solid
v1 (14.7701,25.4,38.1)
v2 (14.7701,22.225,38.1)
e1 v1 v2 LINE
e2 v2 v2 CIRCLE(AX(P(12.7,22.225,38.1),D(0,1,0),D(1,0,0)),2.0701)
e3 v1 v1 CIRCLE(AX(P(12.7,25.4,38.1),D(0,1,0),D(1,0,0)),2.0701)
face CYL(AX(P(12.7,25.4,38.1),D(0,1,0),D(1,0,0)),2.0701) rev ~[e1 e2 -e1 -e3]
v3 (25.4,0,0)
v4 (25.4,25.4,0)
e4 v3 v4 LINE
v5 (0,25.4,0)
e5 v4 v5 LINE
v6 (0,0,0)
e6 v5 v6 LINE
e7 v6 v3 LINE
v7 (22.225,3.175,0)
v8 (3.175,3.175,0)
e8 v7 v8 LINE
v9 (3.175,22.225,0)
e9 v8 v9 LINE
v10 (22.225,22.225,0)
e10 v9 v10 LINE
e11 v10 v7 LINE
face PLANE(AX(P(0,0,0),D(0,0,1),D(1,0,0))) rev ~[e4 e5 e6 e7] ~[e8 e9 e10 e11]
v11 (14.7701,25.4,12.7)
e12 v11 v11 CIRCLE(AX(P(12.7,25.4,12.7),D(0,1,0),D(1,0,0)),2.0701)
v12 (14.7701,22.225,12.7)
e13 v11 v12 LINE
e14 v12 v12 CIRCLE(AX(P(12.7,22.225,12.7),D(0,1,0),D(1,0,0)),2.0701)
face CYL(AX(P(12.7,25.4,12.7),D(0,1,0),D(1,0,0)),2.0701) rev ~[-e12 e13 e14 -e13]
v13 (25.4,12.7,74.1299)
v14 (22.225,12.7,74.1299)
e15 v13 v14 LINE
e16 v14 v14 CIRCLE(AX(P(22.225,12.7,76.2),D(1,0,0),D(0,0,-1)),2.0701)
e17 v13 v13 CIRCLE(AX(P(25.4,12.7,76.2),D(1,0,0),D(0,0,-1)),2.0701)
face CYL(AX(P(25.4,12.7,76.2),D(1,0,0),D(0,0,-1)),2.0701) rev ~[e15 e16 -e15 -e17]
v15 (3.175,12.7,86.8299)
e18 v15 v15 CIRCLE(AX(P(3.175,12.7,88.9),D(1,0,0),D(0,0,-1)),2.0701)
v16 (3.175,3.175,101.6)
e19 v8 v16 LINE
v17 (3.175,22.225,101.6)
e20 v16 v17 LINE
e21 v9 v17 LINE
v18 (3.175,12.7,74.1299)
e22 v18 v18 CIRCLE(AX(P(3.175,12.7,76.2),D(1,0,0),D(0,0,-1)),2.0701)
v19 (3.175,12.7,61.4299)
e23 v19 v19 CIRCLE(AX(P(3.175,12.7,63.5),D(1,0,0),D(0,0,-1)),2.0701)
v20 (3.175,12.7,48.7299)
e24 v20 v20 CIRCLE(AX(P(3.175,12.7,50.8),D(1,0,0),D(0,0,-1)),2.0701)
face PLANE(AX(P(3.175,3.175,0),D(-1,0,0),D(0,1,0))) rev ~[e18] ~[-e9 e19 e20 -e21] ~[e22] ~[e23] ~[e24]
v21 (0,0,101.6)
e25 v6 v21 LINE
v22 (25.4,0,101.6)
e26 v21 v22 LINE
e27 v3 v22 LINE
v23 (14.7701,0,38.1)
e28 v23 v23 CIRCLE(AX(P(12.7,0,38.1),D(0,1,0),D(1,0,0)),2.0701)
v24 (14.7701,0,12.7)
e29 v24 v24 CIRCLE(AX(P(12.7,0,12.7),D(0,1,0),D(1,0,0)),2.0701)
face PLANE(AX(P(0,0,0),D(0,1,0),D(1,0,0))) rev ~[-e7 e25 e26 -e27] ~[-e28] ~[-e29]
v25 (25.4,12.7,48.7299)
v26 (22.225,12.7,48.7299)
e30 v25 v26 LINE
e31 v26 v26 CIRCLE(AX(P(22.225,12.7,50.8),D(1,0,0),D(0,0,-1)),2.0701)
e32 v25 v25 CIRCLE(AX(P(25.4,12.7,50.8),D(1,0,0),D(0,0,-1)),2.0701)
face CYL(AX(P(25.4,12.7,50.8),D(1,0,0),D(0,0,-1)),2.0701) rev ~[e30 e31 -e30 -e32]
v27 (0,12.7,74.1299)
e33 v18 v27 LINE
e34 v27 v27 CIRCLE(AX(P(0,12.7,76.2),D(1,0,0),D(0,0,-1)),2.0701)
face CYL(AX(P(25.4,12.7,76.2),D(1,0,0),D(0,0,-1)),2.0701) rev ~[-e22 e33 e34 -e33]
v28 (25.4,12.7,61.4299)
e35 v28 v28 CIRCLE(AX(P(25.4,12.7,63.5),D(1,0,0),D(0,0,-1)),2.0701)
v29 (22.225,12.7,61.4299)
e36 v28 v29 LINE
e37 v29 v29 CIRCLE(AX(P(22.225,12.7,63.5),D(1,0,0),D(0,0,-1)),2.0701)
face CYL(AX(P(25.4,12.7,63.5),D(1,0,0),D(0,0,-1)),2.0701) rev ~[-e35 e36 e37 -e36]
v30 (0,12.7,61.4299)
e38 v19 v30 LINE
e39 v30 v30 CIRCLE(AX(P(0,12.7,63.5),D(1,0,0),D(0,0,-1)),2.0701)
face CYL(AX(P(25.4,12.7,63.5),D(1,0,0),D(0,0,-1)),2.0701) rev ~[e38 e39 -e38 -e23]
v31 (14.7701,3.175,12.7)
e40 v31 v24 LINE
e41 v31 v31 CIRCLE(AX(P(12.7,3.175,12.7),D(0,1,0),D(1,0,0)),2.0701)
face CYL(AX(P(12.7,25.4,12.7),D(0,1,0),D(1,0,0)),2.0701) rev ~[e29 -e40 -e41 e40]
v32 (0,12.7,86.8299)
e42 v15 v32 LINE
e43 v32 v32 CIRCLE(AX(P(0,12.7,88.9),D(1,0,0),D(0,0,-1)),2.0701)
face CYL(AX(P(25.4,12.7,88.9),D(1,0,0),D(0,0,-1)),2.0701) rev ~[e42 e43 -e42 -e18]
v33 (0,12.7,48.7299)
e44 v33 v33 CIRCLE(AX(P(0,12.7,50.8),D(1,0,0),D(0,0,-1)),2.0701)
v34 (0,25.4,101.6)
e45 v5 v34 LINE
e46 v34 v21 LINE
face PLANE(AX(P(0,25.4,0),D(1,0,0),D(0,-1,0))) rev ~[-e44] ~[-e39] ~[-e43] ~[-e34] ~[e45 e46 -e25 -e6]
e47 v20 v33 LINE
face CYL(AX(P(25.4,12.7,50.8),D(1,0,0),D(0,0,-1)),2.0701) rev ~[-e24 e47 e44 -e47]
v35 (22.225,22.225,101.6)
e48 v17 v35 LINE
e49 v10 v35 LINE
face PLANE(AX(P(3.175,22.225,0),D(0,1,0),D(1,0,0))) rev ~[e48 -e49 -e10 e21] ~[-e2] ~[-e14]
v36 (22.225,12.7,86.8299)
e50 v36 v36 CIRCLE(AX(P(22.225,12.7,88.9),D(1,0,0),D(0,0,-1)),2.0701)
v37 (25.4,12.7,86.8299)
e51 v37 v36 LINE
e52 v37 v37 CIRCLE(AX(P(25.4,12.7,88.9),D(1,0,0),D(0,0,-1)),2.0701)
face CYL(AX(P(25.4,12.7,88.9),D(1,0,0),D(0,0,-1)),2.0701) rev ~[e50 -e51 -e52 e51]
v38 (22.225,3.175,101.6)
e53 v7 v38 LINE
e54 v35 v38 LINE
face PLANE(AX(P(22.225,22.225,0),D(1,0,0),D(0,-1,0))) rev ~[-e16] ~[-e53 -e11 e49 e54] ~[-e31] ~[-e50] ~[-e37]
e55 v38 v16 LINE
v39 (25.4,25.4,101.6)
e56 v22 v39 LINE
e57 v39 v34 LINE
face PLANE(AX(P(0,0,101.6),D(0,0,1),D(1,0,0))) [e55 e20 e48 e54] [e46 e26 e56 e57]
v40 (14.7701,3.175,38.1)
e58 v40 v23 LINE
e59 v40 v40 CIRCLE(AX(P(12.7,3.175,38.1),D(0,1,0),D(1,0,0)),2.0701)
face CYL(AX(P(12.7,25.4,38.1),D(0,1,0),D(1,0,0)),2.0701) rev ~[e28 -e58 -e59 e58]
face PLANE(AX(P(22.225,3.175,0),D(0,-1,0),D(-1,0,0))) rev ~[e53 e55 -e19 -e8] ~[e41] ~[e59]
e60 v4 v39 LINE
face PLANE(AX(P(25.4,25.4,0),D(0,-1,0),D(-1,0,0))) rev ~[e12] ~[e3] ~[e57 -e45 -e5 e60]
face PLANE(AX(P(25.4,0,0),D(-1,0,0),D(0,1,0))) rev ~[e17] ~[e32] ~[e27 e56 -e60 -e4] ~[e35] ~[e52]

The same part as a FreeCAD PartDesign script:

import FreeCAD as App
import Part
import Sketcher

V = App.Vector
Q = App.Units.Quantity


def add_polygon(sketch, points):
    """Adds a closed chain of lines whose ends are joined by coincident constraints."""
    first, n = sketch.GeometryCount, len(points)
    for a, b in zip(points, points[1:] + points[:1]):
        sketch.addGeometry(Part.LineSegment(App.Vector(*a, 0), App.Vector(*b, 0)), False)
    for i in range(n):
        sketch.addConstraint(Sketcher.Constraint("Coincident", first + i, 2, first + (i + 1) % n, 1))

doc = App.newDocument("Part")
body = doc.addObject("PartDesign::Body", "Body")

# Sketch on XY plane
sketch1 = body.newObject("Sketcher::SketchObject", "Sketch")
sketch1.AttachmentSupport = (doc.getObject("XY_Plane"), [""])
sketch1.MapMode = "FlatFace"
add_polygon(sketch1, [(0, 25), (0, 0), (25, 0), (25, 25)])  # lines 0-3
add_polygon(sketch1, [(3, 3), (3, 22), (22, 22), (22, 3)])  # lines 4-7
sketch1.addConstraint(Sketcher.Constraint("Vertical", 0))
sketch1.addConstraint(Sketcher.Constraint("Horizontal", 1))
sketch1.addConstraint(Sketcher.Constraint("Vertical", 2))
sketch1.addConstraint(Sketcher.Constraint("Horizontal", 3))
sketch1.addConstraint(Sketcher.Constraint("Vertical", 4))
sketch1.addConstraint(Sketcher.Constraint("Horizontal", 5))
sketch1.addConstraint(Sketcher.Constraint("Vertical", 6))
sketch1.addConstraint(Sketcher.Constraint("Horizontal", 7))
sketch1.addConstraint(Sketcher.Constraint("Coincident", 0, 2, -1, 1))
sketch1.addConstraint(Sketcher.Constraint("Equal", 3, 0))
sketch1.addConstraint(Sketcher.Constraint("Equal", 7, 4))
sketch1.addConstraint(Sketcher.Constraint("DistanceX", 1, 1, 1, 2, Q("1 in")))
sketch1.addConstraint(Sketcher.Constraint("DistanceX", -1, 1, 4, 2, Q("0.125 in")))
sketch1.addConstraint(Sketcher.Constraint("DistanceY", -1, 1, 6, 2, Q("0.125 in")))
sketch1.addConstraint(Sketcher.Constraint("DistanceY", 4, 2, 3, 2, Q("0.125 in")))
pad1 = body.newObject("PartDesign::Pad", "Pad")
pad1.Profile = sketch1
pad1.Length = Q("4 in")

# Sketch on YZ plane
sketch2 = body.newObject("Sketcher::SketchObject", "Sketch001")
sketch2.AttachmentSupport = (doc.getObject("YZ_Plane"), [""])
sketch2.MapMode = "FlatFace"
sketch2.AttachmentOffset = App.Placement(V(0, 0, 1 * 25.4), App.Rotation())
sketch2.addGeometry(Part.Circle(V(12.7, 88.9, 0), V(0, 0, 1), 2.1), False)
sketch2.addGeometry(Part.Circle(V(12.7, 76.2, 0), V(0, 0, 1), 2.1), False)
sketch2.addGeometry(Part.Circle(V(12.7, 63.5, 0), V(0, 0, 1), 2.1), False)
sketch2.addGeometry(Part.Circle(V(12.7, 50.8, 0), V(0, 0, 1), 2.1), False)
sketch2.addConstraint(Sketcher.Constraint("Equal", 0, 1))
sketch2.addConstraint(Sketcher.Constraint("Equal", 1, 2))
sketch2.addConstraint(Sketcher.Constraint("Equal", 2, 3))
sketch2.addConstraint(Sketcher.Constraint("Vertical", 0, 3, 1, 3))
sketch2.addConstraint(Sketcher.Constraint("Vertical", 1, 3, 2, 3))
sketch2.addConstraint(Sketcher.Constraint("Vertical", 2, 3, 3, 3))
sketch2.addConstraint(Sketcher.Constraint("Diameter", 0, Q("0.163 in")))
sketch2.addConstraint(Sketcher.Constraint("DistanceY", 2, 3, 0, 3, Q("1 in")))
sketch2.addConstraint(Sketcher.Constraint("DistanceY", 3, 3, 1, 3, Q("1 in")))
sketch2.addConstraint(Sketcher.Constraint("DistanceX", -1, 1, 0, 3, Q("0.5 in")))
sketch2.addConstraint(Sketcher.Constraint("DistanceY", 1, 3, 0, 3, Q("0.5 in")))
sketch2.addConstraint(Sketcher.Constraint("DistanceY", -1, 1, 1, 3, Q("3 in")))
pocket1 = body.newObject("PartDesign::Pocket", "Pocket")
pocket1.Profile = sketch2
pocket1.Length = Q("4 in")

# Sketch on XZ plane
sketch3 = body.newObject("Sketcher::SketchObject", "Sketch002")
sketch3.AttachmentSupport = (doc.getObject("XZ_Plane"), [""])
sketch3.MapMode = "FlatFace"
sketch3.AttachmentOffset = App.Placement(V(0, 0, -1 * 25.4), App.Rotation())
sketch3.addGeometry(Part.Circle(V(12.7, 12.7, 0), V(0, 0, 1), 2.1), False)
sketch3.addGeometry(Part.Circle(V(12.7, 38.1, 0), V(0, 0, 1), 2.1), False)
sketch3.addConstraint(Sketcher.Constraint("Equal", 0, 1))
sketch3.addConstraint(Sketcher.Constraint("Vertical", 0, 3, 1, 3))
sketch3.addConstraint(Sketcher.Constraint("Diameter", 0, Q("0.163 in")))
sketch3.addConstraint(Sketcher.Constraint("DistanceY", 0, 3, 1, 3, Q("1 in")))
sketch3.addConstraint(Sketcher.Constraint("DistanceX", -1, 1, 0, 3, Q("0.5 in")))
sketch3.addConstraint(Sketcher.Constraint("DistanceY", -1, 1, 0, 3, Q("0.5 in")))
pocket2 = body.newObject("PartDesign::Pocket", "Pocket001")
pocket2.Profile = sketch3
pocket2.Length = Q("4 in")
pocket2.Reversed = True

doc.recompute()
